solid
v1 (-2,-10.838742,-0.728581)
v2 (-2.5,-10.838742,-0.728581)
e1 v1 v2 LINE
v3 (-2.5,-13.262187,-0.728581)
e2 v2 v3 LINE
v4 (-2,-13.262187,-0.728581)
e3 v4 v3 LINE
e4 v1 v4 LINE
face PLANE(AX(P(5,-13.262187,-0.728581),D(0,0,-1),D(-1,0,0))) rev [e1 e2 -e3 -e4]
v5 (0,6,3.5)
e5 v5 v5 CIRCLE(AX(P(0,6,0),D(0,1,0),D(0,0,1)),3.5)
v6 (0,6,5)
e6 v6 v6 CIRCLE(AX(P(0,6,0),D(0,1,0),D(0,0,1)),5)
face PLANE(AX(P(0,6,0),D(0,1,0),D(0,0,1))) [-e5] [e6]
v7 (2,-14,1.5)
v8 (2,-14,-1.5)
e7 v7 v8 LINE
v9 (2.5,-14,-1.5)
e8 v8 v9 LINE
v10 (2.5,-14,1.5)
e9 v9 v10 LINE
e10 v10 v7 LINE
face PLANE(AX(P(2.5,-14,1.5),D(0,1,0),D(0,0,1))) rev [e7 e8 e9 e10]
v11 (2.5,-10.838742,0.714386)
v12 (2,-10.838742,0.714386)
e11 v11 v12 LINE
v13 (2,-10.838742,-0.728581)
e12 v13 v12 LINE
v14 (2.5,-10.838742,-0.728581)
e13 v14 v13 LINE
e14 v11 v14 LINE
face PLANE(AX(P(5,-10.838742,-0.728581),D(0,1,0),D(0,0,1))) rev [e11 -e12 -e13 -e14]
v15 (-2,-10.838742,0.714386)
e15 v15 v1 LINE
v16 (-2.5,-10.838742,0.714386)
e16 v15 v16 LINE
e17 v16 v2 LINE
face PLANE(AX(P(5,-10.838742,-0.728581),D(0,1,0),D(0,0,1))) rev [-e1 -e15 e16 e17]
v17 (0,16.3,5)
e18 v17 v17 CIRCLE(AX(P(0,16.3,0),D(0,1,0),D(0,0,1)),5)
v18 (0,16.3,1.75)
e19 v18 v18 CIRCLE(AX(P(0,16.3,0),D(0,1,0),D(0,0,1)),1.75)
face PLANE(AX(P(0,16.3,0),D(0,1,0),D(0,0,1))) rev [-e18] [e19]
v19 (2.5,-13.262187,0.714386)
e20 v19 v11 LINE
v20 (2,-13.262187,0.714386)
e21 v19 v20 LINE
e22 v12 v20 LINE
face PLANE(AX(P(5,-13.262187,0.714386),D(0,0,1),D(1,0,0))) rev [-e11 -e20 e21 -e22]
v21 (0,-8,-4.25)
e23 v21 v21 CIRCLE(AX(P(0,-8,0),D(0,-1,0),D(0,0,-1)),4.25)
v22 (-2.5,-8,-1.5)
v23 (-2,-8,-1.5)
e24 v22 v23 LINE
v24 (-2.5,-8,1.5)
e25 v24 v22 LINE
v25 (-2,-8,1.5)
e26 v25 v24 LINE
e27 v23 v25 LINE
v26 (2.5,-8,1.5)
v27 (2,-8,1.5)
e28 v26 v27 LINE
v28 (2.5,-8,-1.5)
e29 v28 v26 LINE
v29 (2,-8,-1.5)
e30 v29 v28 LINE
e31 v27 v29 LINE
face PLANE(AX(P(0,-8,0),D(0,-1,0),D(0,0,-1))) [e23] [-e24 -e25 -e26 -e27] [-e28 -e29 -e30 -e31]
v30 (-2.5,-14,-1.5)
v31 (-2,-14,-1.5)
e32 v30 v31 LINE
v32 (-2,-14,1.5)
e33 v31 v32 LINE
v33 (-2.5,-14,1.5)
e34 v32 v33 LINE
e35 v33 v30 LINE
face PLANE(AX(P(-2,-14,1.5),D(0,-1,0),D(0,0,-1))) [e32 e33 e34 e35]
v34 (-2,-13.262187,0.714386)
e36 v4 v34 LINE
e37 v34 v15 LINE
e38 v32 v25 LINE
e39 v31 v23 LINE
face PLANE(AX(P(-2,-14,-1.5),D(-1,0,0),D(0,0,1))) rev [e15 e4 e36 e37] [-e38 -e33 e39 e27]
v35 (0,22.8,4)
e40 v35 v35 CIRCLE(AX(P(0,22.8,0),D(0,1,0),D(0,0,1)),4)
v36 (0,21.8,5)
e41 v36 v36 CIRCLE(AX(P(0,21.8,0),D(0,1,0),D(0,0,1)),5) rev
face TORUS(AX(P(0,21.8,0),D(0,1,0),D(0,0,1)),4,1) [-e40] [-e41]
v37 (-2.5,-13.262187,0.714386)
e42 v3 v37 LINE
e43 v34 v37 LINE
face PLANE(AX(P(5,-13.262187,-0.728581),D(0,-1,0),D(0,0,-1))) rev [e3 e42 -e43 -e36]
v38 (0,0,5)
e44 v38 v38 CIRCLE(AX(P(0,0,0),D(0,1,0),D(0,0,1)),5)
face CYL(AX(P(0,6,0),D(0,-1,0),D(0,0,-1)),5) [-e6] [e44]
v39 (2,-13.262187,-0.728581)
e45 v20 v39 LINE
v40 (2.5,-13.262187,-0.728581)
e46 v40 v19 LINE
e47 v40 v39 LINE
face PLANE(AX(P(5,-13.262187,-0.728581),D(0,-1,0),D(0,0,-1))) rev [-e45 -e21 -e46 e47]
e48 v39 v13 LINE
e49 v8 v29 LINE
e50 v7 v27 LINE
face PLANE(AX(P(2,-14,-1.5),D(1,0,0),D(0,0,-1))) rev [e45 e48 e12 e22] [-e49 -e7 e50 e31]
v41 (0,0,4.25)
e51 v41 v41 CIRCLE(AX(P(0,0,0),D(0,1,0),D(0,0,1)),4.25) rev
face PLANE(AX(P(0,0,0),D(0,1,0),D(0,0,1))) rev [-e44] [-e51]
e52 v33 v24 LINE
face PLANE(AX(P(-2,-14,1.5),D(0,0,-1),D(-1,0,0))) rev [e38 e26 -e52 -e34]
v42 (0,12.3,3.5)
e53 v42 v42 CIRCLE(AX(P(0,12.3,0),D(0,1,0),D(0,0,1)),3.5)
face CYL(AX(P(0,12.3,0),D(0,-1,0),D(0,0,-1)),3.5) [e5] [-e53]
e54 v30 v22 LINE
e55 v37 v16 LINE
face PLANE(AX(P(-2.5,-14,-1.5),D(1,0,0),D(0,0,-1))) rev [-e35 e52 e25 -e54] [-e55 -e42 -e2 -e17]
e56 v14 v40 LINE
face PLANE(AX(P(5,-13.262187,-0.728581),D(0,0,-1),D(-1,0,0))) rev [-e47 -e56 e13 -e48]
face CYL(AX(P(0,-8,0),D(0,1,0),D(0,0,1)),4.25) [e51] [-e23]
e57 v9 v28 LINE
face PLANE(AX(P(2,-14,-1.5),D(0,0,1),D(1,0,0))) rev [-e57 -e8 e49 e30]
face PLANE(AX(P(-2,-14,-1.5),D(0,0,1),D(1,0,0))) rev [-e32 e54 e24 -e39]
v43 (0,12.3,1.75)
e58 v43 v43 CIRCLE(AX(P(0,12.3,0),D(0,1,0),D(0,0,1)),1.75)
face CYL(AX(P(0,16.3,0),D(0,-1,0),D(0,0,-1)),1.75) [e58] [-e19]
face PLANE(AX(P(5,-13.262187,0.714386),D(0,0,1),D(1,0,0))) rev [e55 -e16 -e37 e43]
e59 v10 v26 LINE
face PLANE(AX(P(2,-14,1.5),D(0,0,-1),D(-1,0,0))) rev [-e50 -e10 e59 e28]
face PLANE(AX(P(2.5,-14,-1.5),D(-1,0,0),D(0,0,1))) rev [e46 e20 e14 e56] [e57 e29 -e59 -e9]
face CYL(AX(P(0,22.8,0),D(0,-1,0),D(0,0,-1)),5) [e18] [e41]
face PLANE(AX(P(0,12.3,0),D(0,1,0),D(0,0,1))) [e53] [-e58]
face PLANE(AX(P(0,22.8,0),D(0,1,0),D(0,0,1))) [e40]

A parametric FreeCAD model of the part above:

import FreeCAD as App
import Part
import Sketcher
from FreeCAD import Vector


def edges_at(feature, points):
    """Names of the edges that pass closest to the given points."""
    edges = feature.Shape.Edges
    near = lambda p: min(range(len(edges)), key=lambda i: edges[i].distToShape(Part.Vertex(*p))[0])
    return sorted({f"Edge{near(p) + 1}" for p in points})


def add_polygon(sketch, points):
    """Adds a closed chain of lines whose ends are joined by coincident constraints."""
    first, n = sketch.GeometryCount, len(points)
    for a, b in zip(points, points[1:] + points[:1]):
        sketch.addGeometry(Part.LineSegment(App.Vector(*a, 0), App.Vector(*b, 0)), False)
    for i in range(n):
        sketch.addConstraint(Sketcher.Constraint("Coincident", first + i, 2, first + (i + 1) % n, 1))

doc = App.newDocument("Part")
body = doc.addObject("PartDesign::Body", "Body")

sketch1 = body.newObject("Sketcher::SketchObject", "Sketch")
sketch1.AttachmentSupport = (doc.getObject("XZ_Plane"), [""])
sketch1.MapMode = "FlatFace"
sketch1.addGeometry(Part.Circle(Vector(0, 0, 0), Vector(0, 0, 1), 5), False)
sketch1.addConstraint([
    Sketcher.Constraint("Coincident", 0, 3, -1, 1),
    Sketcher.Constraint("Diameter", 0, 10.0),
])
pad1 = body.newObject("PartDesign::Pad", "Pad")
pad1.Profile = sketch1
pad1.Length = 6
pad1.Reversed = True

sketch2 = body.newObject("Sketcher::SketchObject", "Sketch001")
sketch2.AttachmentSupport = (doc.getObject("XZ_Plane"), [""])
sketch2.MapMode = "FlatFace"
sketch2.addGeometry(Part.Circle(Vector(0, 0, 0), Vector(0, 0, 1), 4.25), False)
sketch2.addConstraint([
    Sketcher.Constraint("Coincident", 0, 3, -1, 1),
    Sketcher.Constraint("Diameter", 0, 8.5),
])
pad2 = body.newObject("PartDesign::Pad", "Pad001")
pad2.Profile = sketch2
pad2.Length = 8

sketch3 = body.newObject("Sketcher::SketchObject", "Sketch002")
sketch3.AttachmentSupport = (doc.getObject("XZ_Plane"), [""])
sketch3.MapMode = "FlatFace"
sketch3.AttachmentOffset = App.Placement(Vector(0, 0, 8), App.Rotation())
add_polygon(sketch3, [(2, 1.5), (2, -1.5), (2.5, -1.5), (2.5, 1.5)])
add_polygon(sketch3, [(-2.5, 1.5), (-2.5, -1.5), (-2, -1.5), (-2, 1.5)])
sketch3.addConstraint([
    Sketcher.Constraint("Vertical", 0),
    Sketcher.Constraint("Horizontal", 1),
    Sketcher.Constraint("Vertical", 2),
    Sketcher.Constraint("Horizontal", 3),
    Sketcher.Constraint("Vertical", 4),
    Sketcher.Constraint("Horizontal", 5),
    Sketcher.Constraint("Vertical", 6),
    Sketcher.Constraint("Horizontal", 7),
    Sketcher.Constraint("Symmetric", 2, 2, 4, 2, -1, 1),
    Sketcher.Constraint("Symmetric", 0, 2, 6, 2, -1, 1),
    Sketcher.Constraint("Horizontal", 1, 2, 4, 2),
    Sketcher.Constraint("DistanceY", 0, 2, 0, 1, 3.0),
    Sketcher.Constraint("DistanceX", 1, 1, 1, 2, 0.5),
    Sketcher.Constraint("DistanceX", -1, 1, 0, 2, 2.0),
])
pad3 = body.newObject("PartDesign::Pad", "Pad002")
pad3.Profile = sketch3
pad3.Length = 6

sketch4 = body.newObject("Sketcher::SketchObject", "Sketch003")
sketch4.AttachmentSupport = (doc.getObject("YZ_Plane"), [""])
sketch4.MapMode = "FlatFace"
sketch4.AttachmentOffset = App.Placement(Vector(0, 0, -2.5), App.Rotation())
add_polygon(sketch4, [(-10.838742, -0.728581), (-13.262187, -0.728581), (-13.262187, 0.714386), (-10.838742, 0.714386)])
sketch4.addConstraint([
    Sketcher.Constraint("Horizontal", 0),
    Sketcher.Constraint("Vertical", 1),
    Sketcher.Constraint("Horizontal", 2),
    Sketcher.Constraint("Vertical", 3),
    Sketcher.Constraint("DistanceX", 0, 2, 0, 1, 2.423445),
    Sketcher.Constraint("DistanceY", 1, 1, 1, 2, 1.442967),
    Sketcher.Constraint("DistanceY", 0, 2, -1, 1, 0.728581),
    Sketcher.Constraint("DistanceX", 2, 2, -1, 1, 10.838742),
])
pocket1 = body.newObject("PartDesign::Pocket", "Pocket")
pocket1.Profile = sketch4
pocket1.Type = "ThroughAll"
pocket1.Reversed = True

sketch5 = body.newObject("Sketcher::SketchObject", "Sketch004")
sketch5.AttachmentSupport = (doc.getObject("XZ_Plane"), [""])
sketch5.MapMode = "FlatFace"
sketch5.AttachmentOffset = App.Placement(Vector(0, 0, -6), App.Rotation())
sketch5.addGeometry(Part.Circle(Vector(0, 0, 0), Vector(0, 0, 1), 3.5), False)
sketch5.addConstraint([
    Sketcher.Constraint("Coincident", 0, 3, -1, 1),
    Sketcher.Constraint("Diameter", 0, 7.0),
])
pad4 = body.newObject("PartDesign::Pad", "Pad003")
pad4.Profile = sketch5
pad4.Length = 6.3
pad4.Reversed = True

sketch6 = body.newObject("Sketcher::SketchObject", "Sketch005")
sketch6.AttachmentSupport = (doc.getObject("XZ_Plane"), [""])
sketch6.MapMode = "FlatFace"
sketch6.AttachmentOffset = App.Placement(Vector(0, 0, -12.3), App.Rotation())
sketch6.addGeometry(Part.Circle(Vector(0, 0, 0), Vector(0, 0, 1), 1.75), False)
sketch6.addConstraint([
    Sketcher.Constraint("Coincident", 0, 3, -1, 1),
    Sketcher.Constraint("Diameter", 0, 3.5),
])
pad5 = body.newObject("PartDesign::Pad", "Pad004")
pad5.Profile = sketch6
pad5.Length = 4
pad5.Reversed = True

sketch7 = body.newObject("Sketcher::SketchObject", "Sketch006")
sketch7.AttachmentSupport = (doc.getObject("XZ_Plane"), [""])
sketch7.MapMode = "FlatFace"
sketch7.AttachmentOffset = App.Placement(Vector(0, 0, -16.3), App.Rotation())
sketch7.addGeometry(Part.Circle(Vector(0, 0, 0), Vector(0, 0, 1), 5), False)
sketch7.addConstraint([
    Sketcher.Constraint("Coincident", 0, 3, -1, 1),
    Sketcher.Constraint("Diameter", 0, 10.0),
])
pad6 = body.newObject("PartDesign::Pad", "Pad005")
pad6.Profile = sketch7
pad6.Length = 6.5
pad6.Reversed = True
doc.recompute()

fillet = body.newObject("PartDesign::Fillet", "Fillet")
fillet.Base = (pad6, edges_at(pad6, [(-5, 22.8, 0)]))
fillet.Radius = 1

doc.recompute()
